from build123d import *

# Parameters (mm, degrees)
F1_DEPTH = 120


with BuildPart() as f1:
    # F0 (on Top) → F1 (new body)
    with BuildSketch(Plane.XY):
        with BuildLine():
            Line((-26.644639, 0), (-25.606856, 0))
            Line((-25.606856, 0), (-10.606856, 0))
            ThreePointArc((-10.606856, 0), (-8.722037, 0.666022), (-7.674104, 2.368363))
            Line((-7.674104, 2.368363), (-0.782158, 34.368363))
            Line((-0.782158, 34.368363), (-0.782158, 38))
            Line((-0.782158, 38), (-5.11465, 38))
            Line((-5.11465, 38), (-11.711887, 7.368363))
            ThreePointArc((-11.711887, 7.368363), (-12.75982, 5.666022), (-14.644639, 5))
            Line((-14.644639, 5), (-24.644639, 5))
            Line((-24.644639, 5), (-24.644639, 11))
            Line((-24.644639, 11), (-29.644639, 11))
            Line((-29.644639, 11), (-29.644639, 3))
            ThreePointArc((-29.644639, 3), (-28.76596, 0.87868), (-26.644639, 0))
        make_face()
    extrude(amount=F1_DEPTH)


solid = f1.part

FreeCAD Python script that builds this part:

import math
import FreeCAD as App
import Part
import Sketcher

doc = App.newDocument("Part")
body = doc.addObject("PartDesign::Body", "Body")

sketch1 = body.newObject("Sketcher::SketchObject", "Sketch")
sketch1.AttachmentSupport = (doc.getObject("XY_Plane"), [""])
sketch1.MapMode = "FlatFace"
sketch1.addGeometry([
    Part.LineSegment(App.Vector(-26.644639, 0, 0), App.Vector(-10.606856, 0, 0)),
    Part.ArcOfCircle(Part.Circle(App.Vector(-10.606858, 3.000002, 0), App.Vector(0, 0, 1), 3.000002), math.radians(-89.999965), math.radians(-12.154366)),
    Part.LineSegment(App.Vector(-7.674104, 2.368363, 0), App.Vector(-0.782158, 34.368363, 0)),
    Part.LineSegment(App.Vector(-0.782158, 34.368363, 0), App.Vector(-0.782158, 38, 0)),
    Part.LineSegment(App.Vector(-0.782158, 38, 0), App.Vector(-5.11465, 38, 0)),
    Part.LineSegment(App.Vector(-5.11465, 38, 0), App.Vector(-11.711887, 7.368363, 0)),
    Part.ArcOfCircle(Part.Circle(App.Vector(-14.644641, 8.000002, 0), App.Vector(0, 0, 1), 3.000002), math.radians(-89.999965), math.radians(-12.154366)),
    Part.LineSegment(App.Vector(-14.644639, 5, 0), App.Vector(-24.644639, 5, 0)),
    Part.LineSegment(App.Vector(-24.644639, 5, 0), App.Vector(-24.644639, 11, 0)),
    Part.LineSegment(App.Vector(-24.644639, 11, 0), App.Vector(-29.644639, 11, 0)),
    Part.LineSegment(App.Vector(-29.644639, 11, 0), App.Vector(-29.644639, 3, 0)),
    Part.ArcOfCircle(Part.Circle(App.Vector(-26.64464, 2.999999, 0), App.Vector(0, 0, 1), 2.999999), math.radians(179.99999), math.radians(270.00001)),
], False)
sketch1.addConstraint([
    Sketcher.Constraint("Tangent", 0, 2, 1, 1),
    Sketcher.Constraint("Tangent", 1, 2, 2, 1),
    Sketcher.Constraint("Coincident", 2, 2, 3, 1),
    Sketcher.Constraint("Coincident", 3, 2, 4, 1),
    Sketcher.Constraint("Coincident", 4, 2, 5, 1),
    Sketcher.Constraint("Tangent", 5, 2, 6, 2),
    Sketcher.Constraint("Tangent", 6, 1, 7, 1),
    Sketcher.Constraint("Coincident", 7, 2, 8, 1),
    Sketcher.Constraint("Coincident", 8, 2, 9, 1),
    Sketcher.Constraint("Coincident", 9, 2, 10, 1),
    Sketcher.Constraint("Tangent", 10, 2, 11, 1),
    Sketcher.Constraint("Tangent", 11, 2, 0, 1),
    Sketcher.Constraint("Horizontal", 0),
    Sketcher.Constraint("Vertical", 3),
    Sketcher.Constraint("Horizontal", 4),
    Sketcher.Constraint("Horizontal", 7),
    Sketcher.Constraint("Vertical", 8),
    Sketcher.Constraint("Horizontal", 9),
    Sketcher.Constraint("Vertical", 10),
    Sketcher.Constraint("Equal", 1, 6),
    Sketcher.Constraint("PointOnObject", 0, 2, -1),
    Sketcher.Constraint("Parallel", 2, 5),
    Sketcher.Constraint("Radius", 11, 2.999999),
    Sketcher.Constraint("DistanceX", 7, 2, 7, 1, 10.0),
    Sketcher.Constraint("DistanceX", 9, 2, 9, 1, 5.0),
    Sketcher.Constraint("DistanceY", 8, 1, 8, 2, 6.0),
    Sketcher.Constraint("DistanceY", 10, 2, 10, 1, 8.0),
    Sketcher.Constraint("DistanceY", -1, 1, 3, 2, 38.0),
    Sketcher.Constraint("DistanceY", 1, 2, 2, 2, 32.0),
    Sketcher.Constraint("Radius", 1, 3.000002),
    Sketcher.Constraint("DistanceX", 1, 3, 2, 2, 9.8247),
    Sketcher.Constraint("DistanceX", 0, 1, 0, 2, 16.037783),
    Sketcher.Constraint("DistanceX", 6, 3, -1, 1, 14.644641),
])
pad1 = body.newObject("PartDesign::Pad", "Pad")
pad1.Profile = sketch1
pad1.Length = 120

doc.recompute()
